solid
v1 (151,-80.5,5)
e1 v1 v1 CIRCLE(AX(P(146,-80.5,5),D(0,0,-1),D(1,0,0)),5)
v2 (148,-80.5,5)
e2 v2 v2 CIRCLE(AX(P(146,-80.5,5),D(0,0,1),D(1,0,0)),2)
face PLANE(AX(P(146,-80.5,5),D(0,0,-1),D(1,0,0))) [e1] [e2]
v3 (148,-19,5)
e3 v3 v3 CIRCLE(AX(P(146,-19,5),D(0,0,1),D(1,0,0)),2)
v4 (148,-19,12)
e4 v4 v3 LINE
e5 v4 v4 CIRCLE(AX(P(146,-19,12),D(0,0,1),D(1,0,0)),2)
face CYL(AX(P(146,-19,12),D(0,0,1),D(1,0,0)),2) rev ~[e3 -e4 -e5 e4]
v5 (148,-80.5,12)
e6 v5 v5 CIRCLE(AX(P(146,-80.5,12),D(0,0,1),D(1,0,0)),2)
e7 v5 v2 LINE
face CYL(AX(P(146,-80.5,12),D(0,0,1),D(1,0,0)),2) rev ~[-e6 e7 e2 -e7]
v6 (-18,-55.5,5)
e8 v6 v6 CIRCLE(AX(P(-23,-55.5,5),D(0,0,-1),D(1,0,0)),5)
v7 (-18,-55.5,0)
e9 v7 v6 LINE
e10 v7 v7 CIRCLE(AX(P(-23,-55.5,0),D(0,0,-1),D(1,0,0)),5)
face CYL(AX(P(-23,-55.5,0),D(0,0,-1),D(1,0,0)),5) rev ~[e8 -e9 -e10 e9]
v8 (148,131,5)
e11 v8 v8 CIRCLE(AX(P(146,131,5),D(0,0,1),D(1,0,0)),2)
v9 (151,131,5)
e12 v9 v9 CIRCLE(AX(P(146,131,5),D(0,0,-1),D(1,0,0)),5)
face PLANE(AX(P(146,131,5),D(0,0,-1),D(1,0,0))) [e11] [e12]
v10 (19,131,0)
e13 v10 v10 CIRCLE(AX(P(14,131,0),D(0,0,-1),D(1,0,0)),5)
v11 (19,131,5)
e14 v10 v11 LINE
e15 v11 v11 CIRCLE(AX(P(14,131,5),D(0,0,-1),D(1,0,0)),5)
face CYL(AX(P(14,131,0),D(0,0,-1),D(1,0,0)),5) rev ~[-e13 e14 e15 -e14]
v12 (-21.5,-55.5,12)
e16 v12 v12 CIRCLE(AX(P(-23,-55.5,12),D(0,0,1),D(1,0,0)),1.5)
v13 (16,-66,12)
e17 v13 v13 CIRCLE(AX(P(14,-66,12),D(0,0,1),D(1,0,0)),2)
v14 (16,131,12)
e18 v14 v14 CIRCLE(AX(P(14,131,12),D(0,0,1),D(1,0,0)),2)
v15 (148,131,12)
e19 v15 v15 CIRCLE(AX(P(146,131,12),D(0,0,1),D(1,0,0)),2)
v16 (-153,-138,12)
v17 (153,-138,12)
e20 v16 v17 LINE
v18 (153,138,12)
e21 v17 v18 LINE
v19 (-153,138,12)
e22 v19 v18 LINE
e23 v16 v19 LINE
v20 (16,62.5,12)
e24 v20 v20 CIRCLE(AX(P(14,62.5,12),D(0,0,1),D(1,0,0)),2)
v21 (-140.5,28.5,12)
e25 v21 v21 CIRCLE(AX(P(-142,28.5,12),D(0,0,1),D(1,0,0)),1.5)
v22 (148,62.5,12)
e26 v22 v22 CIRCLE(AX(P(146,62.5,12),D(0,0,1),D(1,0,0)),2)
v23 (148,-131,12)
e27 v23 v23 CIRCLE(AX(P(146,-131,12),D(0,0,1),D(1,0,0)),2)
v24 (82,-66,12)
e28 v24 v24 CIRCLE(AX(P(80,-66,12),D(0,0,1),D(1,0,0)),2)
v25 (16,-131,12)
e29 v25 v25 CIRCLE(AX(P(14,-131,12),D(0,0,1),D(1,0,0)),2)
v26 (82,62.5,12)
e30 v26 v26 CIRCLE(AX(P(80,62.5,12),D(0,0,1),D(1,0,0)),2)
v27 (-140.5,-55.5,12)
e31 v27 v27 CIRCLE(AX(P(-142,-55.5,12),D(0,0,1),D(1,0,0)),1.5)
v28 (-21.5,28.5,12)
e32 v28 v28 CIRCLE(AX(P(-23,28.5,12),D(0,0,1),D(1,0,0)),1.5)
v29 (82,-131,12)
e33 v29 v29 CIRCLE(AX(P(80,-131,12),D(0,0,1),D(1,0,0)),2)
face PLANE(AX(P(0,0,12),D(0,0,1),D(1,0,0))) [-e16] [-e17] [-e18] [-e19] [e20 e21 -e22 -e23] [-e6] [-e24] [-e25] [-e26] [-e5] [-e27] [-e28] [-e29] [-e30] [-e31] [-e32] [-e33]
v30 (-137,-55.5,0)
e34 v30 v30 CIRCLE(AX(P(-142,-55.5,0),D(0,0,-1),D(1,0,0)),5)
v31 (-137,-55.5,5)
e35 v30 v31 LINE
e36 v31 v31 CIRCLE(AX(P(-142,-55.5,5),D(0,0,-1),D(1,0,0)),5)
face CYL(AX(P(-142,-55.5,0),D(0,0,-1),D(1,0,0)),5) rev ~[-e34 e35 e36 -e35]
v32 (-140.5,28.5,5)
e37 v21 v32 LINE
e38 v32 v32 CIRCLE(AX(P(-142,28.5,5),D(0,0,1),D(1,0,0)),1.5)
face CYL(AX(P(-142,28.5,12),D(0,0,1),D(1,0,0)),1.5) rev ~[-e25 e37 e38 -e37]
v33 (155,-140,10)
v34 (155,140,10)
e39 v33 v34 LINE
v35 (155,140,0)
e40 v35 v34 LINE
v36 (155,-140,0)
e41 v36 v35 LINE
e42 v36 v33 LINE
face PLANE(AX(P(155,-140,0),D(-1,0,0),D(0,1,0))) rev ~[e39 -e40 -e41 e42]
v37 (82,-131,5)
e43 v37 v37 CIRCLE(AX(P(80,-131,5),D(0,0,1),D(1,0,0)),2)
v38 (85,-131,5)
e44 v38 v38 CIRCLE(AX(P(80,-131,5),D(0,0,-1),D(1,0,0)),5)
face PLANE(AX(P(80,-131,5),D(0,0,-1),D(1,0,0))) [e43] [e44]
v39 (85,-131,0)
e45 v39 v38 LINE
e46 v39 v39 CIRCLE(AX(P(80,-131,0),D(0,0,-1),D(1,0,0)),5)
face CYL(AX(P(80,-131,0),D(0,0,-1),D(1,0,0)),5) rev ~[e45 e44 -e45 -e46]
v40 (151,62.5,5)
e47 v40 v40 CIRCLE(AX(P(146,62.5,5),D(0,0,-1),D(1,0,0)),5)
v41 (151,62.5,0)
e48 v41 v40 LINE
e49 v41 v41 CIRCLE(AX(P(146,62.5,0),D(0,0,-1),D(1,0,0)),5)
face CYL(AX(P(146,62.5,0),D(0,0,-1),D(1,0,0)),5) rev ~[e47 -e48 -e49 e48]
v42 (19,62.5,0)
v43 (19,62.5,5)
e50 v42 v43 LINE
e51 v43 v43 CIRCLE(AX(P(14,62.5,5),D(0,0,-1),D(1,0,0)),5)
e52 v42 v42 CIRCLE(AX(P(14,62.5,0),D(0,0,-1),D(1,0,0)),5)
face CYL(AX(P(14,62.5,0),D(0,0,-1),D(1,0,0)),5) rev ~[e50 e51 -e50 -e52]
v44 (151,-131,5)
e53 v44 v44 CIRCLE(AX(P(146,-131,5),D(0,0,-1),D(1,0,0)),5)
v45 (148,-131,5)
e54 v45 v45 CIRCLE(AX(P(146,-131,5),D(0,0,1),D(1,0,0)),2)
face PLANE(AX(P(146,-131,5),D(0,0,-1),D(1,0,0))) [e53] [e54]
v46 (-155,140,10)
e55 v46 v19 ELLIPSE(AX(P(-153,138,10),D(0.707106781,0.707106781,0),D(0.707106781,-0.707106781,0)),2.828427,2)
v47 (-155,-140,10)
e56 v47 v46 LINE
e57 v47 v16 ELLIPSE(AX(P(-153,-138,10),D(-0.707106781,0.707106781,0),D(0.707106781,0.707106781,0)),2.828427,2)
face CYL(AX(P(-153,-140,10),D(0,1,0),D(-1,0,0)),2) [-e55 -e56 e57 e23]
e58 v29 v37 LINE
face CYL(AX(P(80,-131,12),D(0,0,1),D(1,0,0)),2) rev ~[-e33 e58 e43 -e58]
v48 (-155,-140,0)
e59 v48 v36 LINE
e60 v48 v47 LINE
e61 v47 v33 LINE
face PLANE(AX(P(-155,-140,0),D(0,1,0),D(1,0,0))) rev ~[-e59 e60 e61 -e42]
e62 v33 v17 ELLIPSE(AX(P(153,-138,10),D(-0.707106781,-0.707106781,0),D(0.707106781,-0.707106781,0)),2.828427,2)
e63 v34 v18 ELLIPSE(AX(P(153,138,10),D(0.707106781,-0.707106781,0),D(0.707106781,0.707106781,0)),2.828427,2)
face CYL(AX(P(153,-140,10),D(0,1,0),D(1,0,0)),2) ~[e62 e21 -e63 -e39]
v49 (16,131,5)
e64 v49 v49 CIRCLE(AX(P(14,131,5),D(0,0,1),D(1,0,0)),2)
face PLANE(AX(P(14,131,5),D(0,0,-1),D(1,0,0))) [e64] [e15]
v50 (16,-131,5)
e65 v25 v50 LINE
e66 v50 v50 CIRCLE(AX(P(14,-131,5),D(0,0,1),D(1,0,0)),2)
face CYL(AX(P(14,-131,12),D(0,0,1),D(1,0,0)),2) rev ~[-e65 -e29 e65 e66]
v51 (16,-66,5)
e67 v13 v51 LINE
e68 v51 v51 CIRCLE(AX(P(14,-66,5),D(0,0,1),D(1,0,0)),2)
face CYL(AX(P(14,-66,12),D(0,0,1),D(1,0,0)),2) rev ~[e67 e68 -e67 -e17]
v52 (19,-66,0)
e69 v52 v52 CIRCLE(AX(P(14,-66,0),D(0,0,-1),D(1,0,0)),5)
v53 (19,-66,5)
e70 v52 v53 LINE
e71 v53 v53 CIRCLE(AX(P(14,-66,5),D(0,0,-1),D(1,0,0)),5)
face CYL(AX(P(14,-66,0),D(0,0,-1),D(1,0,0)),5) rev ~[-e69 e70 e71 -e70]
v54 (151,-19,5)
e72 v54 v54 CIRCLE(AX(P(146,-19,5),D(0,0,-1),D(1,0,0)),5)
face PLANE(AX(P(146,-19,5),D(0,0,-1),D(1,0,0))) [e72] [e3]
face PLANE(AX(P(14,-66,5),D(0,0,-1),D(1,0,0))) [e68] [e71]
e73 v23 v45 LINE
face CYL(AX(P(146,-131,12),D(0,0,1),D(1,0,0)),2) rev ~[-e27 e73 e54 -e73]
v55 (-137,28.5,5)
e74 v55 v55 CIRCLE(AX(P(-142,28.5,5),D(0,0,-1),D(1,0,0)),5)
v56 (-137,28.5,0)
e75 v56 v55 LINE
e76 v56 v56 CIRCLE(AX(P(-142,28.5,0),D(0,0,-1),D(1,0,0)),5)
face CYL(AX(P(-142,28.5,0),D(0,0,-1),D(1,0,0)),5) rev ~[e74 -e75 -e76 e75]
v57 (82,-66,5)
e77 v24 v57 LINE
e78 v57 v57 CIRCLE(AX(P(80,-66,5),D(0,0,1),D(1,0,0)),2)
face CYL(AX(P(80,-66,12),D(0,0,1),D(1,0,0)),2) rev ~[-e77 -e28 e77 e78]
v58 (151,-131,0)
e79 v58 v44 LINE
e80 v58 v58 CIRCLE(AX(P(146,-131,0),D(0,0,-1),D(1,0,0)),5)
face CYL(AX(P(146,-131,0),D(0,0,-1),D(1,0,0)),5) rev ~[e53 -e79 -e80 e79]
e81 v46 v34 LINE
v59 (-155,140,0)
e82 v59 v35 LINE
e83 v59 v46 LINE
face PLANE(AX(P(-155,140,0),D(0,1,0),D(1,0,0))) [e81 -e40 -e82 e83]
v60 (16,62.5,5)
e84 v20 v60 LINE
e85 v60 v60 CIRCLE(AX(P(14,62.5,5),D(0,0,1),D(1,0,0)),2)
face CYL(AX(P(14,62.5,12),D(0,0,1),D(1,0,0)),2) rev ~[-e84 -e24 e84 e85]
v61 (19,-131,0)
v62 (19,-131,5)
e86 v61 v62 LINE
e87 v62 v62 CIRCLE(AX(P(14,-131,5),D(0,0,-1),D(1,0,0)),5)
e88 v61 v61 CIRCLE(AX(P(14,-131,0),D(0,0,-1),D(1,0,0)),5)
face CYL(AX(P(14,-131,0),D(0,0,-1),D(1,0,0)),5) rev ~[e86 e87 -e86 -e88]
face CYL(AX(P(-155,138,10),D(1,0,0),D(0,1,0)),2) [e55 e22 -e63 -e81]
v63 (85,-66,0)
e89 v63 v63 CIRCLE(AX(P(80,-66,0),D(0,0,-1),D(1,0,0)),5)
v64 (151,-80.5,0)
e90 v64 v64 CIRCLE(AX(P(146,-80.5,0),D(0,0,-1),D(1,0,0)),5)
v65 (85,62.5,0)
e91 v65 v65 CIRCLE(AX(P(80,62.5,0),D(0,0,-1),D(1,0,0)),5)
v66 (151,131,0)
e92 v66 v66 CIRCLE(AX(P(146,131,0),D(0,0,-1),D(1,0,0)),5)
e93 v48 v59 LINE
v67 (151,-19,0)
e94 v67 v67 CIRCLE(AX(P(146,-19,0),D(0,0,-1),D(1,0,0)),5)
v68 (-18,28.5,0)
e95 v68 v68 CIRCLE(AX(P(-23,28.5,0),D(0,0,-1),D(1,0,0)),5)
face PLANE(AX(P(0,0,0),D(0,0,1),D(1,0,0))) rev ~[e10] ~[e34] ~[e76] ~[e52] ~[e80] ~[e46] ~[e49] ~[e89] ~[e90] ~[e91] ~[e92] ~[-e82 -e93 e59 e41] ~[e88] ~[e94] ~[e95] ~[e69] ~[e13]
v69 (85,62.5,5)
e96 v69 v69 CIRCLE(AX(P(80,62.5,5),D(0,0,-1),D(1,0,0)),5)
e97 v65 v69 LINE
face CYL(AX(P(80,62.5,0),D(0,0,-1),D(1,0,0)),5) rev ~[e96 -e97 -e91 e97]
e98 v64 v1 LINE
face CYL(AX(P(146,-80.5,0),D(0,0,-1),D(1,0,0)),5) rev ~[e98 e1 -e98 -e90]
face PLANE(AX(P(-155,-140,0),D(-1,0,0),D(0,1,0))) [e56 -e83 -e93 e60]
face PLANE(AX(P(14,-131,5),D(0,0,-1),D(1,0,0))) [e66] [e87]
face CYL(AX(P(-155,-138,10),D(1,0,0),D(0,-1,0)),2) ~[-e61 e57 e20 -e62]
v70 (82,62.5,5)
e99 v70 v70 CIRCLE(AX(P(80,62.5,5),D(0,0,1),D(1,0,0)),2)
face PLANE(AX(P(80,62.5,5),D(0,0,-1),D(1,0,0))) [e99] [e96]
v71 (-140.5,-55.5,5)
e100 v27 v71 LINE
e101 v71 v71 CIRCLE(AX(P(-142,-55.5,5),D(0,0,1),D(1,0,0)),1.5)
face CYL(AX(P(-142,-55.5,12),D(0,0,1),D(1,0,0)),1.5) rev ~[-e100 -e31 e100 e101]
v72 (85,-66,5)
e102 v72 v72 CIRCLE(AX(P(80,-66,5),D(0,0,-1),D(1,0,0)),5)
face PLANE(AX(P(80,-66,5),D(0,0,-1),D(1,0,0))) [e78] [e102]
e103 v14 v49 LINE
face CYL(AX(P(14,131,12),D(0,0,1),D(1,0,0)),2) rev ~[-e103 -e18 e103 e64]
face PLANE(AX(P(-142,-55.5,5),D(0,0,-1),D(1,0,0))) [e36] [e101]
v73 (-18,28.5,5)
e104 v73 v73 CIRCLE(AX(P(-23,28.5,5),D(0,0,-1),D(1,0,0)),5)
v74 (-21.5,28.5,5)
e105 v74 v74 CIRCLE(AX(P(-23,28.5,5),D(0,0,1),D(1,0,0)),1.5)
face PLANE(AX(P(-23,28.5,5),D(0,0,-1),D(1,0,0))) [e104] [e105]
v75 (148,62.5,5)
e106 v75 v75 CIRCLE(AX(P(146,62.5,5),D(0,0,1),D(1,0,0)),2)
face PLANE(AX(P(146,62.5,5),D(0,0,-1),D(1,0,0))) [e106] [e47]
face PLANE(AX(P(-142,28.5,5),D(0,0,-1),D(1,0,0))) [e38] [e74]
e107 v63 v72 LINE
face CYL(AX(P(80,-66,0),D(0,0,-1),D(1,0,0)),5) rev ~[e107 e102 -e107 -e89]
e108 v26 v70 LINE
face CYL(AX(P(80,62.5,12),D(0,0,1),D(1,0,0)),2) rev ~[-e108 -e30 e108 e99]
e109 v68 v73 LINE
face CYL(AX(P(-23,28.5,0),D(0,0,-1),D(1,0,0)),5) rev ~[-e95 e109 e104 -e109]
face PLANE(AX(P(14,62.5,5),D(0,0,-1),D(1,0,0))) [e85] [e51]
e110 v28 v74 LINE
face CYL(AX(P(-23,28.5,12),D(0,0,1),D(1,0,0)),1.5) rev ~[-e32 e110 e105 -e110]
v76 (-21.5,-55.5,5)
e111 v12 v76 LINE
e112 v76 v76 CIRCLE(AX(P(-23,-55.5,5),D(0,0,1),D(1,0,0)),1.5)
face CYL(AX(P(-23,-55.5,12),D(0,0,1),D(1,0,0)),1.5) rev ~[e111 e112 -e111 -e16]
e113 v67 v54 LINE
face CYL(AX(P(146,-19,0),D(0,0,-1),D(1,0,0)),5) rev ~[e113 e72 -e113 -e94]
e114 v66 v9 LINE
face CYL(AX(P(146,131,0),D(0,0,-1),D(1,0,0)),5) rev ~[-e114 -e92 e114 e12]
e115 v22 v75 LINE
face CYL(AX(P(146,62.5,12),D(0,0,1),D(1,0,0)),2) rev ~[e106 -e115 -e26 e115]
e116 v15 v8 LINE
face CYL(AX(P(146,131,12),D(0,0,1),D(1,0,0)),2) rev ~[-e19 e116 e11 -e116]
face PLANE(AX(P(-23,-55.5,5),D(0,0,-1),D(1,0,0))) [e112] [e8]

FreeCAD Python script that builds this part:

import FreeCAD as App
import Part
import Sketcher
from FreeCAD import Vector


def edges_at(feature, points):
    """Names of the edges that pass closest to the given points."""
    edges = feature.Shape.Edges
    near = lambda p: min(range(len(edges)), key=lambda i: edges[i].distToShape(Part.Vertex(*p))[0])
    return sorted({f"Edge{near(p) + 1}" for p in points})

doc = App.newDocument("Part")
params = doc.addObject("Spreadsheet::Sheet", "Params")
for row, (alias, value) in enumerate([
    ("sketch1_width", "310 mm"),
    ("sketch1_height", "280 mm"),
    ("pad1_length", "12 mm"),
    ("fillet_radius", "2 mm"),
    ("sketch2_diameter", "4 mm"),
    ("pocket1_length", "25 mm"),
    ("sketch3_diameter", "10 mm"),
    ("pocket2_length", "5 mm"),
    ("sketch4_diameter", "3 mm"),
    ("pocket3_length", "25 mm"),
    ("sketch5_diameter", "10 mm"),
    ("pocket4_length", "5 mm"),
], start=1):
    params.set(f"A{row}", alias)
    params.set(f"B{row}", "=" + value)
    params.setAlias(f"B{row}", alias)

body = doc.addObject("PartDesign::Body", "Body")

sketch1 = body.newObject("Sketcher::SketchObject", "Sketch")
sketch1.AttachmentSupport = (doc.getObject("XY_Plane"), [""])
sketch1.MapMode = "FlatFace"
sketch1.addGeometry([
    Part.LineSegment(Vector(-155, 140, 0), Vector(-155, -140, 0)),
    Part.LineSegment(Vector(-155, -140, 0), Vector(155, -140, 0)),
    Part.LineSegment(Vector(155, -140, 0), Vector(155, 140, 0)),
    Part.LineSegment(Vector(155, 140, 0), Vector(-155, 140, 0)),
], False)
sketch1.addConstraint([
    Sketcher.Constraint("Coincident", 0, 2, 1, 1),
    Sketcher.Constraint("Coincident", 1, 2, 2, 1),
    Sketcher.Constraint("Coincident", 2, 2, 3, 1),
    Sketcher.Constraint("Coincident", 3, 2, 0, 1),
    Sketcher.Constraint("Vertical", 0),
    Sketcher.Constraint("Horizontal", 1),
    Sketcher.Constraint("Vertical", 2),
    Sketcher.Constraint("Horizontal", 3),
    Sketcher.Constraint("Symmetric", 0, 2, 2, 2, -1, 1),
    Sketcher.Constraint("DistanceX", 1, 1, 1, 2, 310.0),
    Sketcher.Constraint("DistanceY", 0, 2, 0, 1, 280.0),
])
sketch1.setExpression("Constraints[9]", "Params.sketch1_width")
sketch1.setExpression("Constraints[10]", "Params.sketch1_height")
pad1 = body.newObject("PartDesign::Pad", "Pad")
pad1.Profile = sketch1
pad1.setExpression("Length", "Params.pad1_length")
doc.recompute()

fillet = body.newObject("PartDesign::Fillet", "Fillet")
fillet.Base = (pad1, edges_at(pad1, [
    (0, -140, 12),
    (155, 0, 12),
    (0, 140, 12),
    (-155, 0, 12),
]))
fillet.setExpression("Radius", "Params.fillet_radius")

sketch2 = body.newObject("Sketcher::SketchObject", "Sketch001")
sketch2.AttachmentSupport = (doc.getObject("XY_Plane"), [""])
sketch2.MapMode = "FlatFace"
sketch2.AttachmentOffset = App.Placement(Vector(0, 0, 12), App.Rotation())
sketch2.addGeometry([
    Part.Circle(Vector(14, -131, 0), Vector(0, 0, 1), 2),
    Part.Circle(Vector(14, 131, 0), Vector(0, 0, 1), 2),
    Part.Circle(Vector(146, 131, 0), Vector(0, 0, 1), 2),
    Part.Circle(Vector(146, -131, 0), Vector(0, 0, 1), 2),
    Part.Circle(Vector(146, 62.5, 0), Vector(0, 0, 1), 2),
    Part.Circle(Vector(146, -80.5, 0), Vector(0, 0, 1), 2),
    Part.Circle(Vector(14, -66, 0), Vector(0, 0, 1), 2),
    Part.Circle(Vector(14, 62.5, 0), Vector(0, 0, 1), 2),
    Part.Circle(Vector(80, 62.5, 0), Vector(0, 0, 1), 2),
    Part.Circle(Vector(80, -66, 0), Vector(0, 0, 1), 2),
    Part.Circle(Vector(146, -19, 0), Vector(0, 0, 1), 2),
    Part.Circle(Vector(80, -131, 0), Vector(0, 0, 1), 2),
], False)
sketch2.addConstraint([
    Sketcher.Constraint("Equal", 0, 1),
    Sketcher.Constraint("Equal", 1, 2),
    Sketcher.Constraint("Equal", 2, 3),
    Sketcher.Constraint("Equal", 3, 4),
    Sketcher.Constraint("Equal", 4, 5),
    Sketcher.Constraint("Equal", 5, 6),
    Sketcher.Constraint("Equal", 6, 7),
    Sketcher.Constraint("Equal", 7, 8),
    Sketcher.Constraint("Equal", 8, 9),
    Sketcher.Constraint("Equal", 9, 10),
    Sketcher.Constraint("Equal", 10, 11),
    Sketcher.Constraint("Symmetric", 0, 3, 1, 3, -1),
    Sketcher.Constraint("Symmetric", 2, 3, 3, 3, -1),
    Sketcher.Constraint("Horizontal", 1, 3, 2, 3),
    Sketcher.Constraint("Horizontal", 4, 3, 7, 3),
    Sketcher.Constraint("Horizontal", 7, 3, 8, 3),
    Sketcher.Constraint("Horizontal", 6, 3, 9, 3),
    Sketcher.Constraint("Horizontal", 3, 3, 11, 3),
    Sketcher.Constraint("Vertical", 3, 3, 4, 3),
    Sketcher.Constraint("Vertical", 4, 3, 5, 3),
    Sketcher.Constraint("Vertical", 1, 3, 6, 3),
    Sketcher.Constraint("Vertical", 6, 3, 7, 3),
    Sketcher.Constraint("Vertical", 8, 3, 9, 3),
    Sketcher.Constraint("Vertical", 5, 3, 10, 3),
    Sketcher.Constraint("Vertical", 9, 3, 11, 3),
    Sketcher.Constraint("Diameter", 0, 4.0),
    Sketcher.Constraint("DistanceX", -1, 1, 0, 3, 14.0),
    Sketcher.Constraint("DistanceY", 0, 3, -1, 1, 131.0),
    Sketcher.Constraint("DistanceX", -1, 1, 2, 3, 146.0),
    Sketcher.Constraint("DistanceY", 6, 3, -1, 1, 66.0),
    Sketcher.Constraint("DistanceX", -1, 1, 8, 3, 80.0),
    Sketcher.Constraint("DistanceY", 10, 3, -1, 1, 19.0),
    Sketcher.Constraint("DistanceY", 5, 3, 4, 3, 143.0),
    Sketcher.Constraint("DistanceY", -1, 1, 4, 3, 62.5),
])
sketch2.setExpression("Constraints[25]", "Params.sketch2_diameter")
pocket1 = body.newObject("PartDesign::Pocket", "Pocket")
pocket1.Profile = sketch2
pocket1.setExpression("Length", "Params.pocket1_length")

sketch3 = body.newObject("Sketcher::SketchObject", "Sketch002")
sketch3.AttachmentSupport = (doc.getObject("XY_Plane"), [""])
sketch3.MapMode = "FlatFace"
sketch3.addGeometry([
    Part.Circle(Vector(14, -131, 0), Vector(0, 0, 1), 5),
    Part.Circle(Vector(14, -66, 0), Vector(0, 0, 1), 5),
    Part.Circle(Vector(146, -80, 0), Vector(0, 0, 1), 5),
    Part.Circle(Vector(146, -131, 0), Vector(0, 0, 1), 5),
    Part.Circle(Vector(146, 62, 0), Vector(0, 0, 1), 5),
    Part.Circle(Vector(14, 62, 0), Vector(0, 0, 1), 5),
    Part.Circle(Vector(14, 131, 0), Vector(0, 0, 1), 5),
    Part.Circle(Vector(146, 131, 0), Vector(0, 0, 1), 5),
    Part.Circle(Vector(80, 62, 0), Vector(0, 0, 1), 5),
    Part.Circle(Vector(80, -66, 0), Vector(0, 0, 1), 5),
    Part.Circle(Vector(146, -19, 0), Vector(0, 0, 1), 5),
    Part.Circle(Vector(80, -131, 0), Vector(0, 0, 1), 5),
], False)
sketch3.addConstraint([
    Sketcher.Constraint("Equal", 0, 1),
    Sketcher.Constraint("Equal", 1, 2),
    Sketcher.Constraint("Equal", 2, 3),
    Sketcher.Constraint("Equal", 3, 4),
    Sketcher.Constraint("Equal", 4, 5),
    Sketcher.Constraint("Equal", 5, 6),
    Sketcher.Constraint("Equal", 6, 7),
    Sketcher.Constraint("Equal", 7, 8),
    Sketcher.Constraint("Equal", 8, 9),
    Sketcher.Constraint("Equal", 9, 10),
    Sketcher.Constraint("Equal", 10, 11),
    Sketcher.Constraint("Symmetric", 0, 3, 6, 3, -1),
    Sketcher.Constraint("Symmetric", 3, 3, 7, 3, -1),
    Sketcher.Constraint("Horizontal", 0, 3, 3, 3),
    Sketcher.Constraint("Horizontal", 4, 3, 5, 3),
    Sketcher.Constraint("Horizontal", 5, 3, 8, 3),
    Sketcher.Constraint("Horizontal", 1, 3, 9, 3),
    Sketcher.Constraint("Horizontal", 3, 3, 11, 3),
    Sketcher.Constraint("Vertical", 0, 3, 1, 3),
    Sketcher.Constraint("Vertical", 2, 3, 3, 3),
    Sketcher.Constraint("Vertical", 3, 3, 4, 3),
    Sketcher.Constraint("Vertical", 1, 3, 5, 3),
    Sketcher.Constraint("Vertical", 8, 3, 9, 3),
    Sketcher.Constraint("Vertical", 7, 3, 10, 3),
    Sketcher.Constraint("Vertical", 9, 3, 11, 3),
    Sketcher.Constraint("Diameter", 0, 10.0),
    Sketcher.Constraint("DistanceX", -1, 1, 0, 3, 14.0),
    Sketcher.Constraint("DistanceY", 0, 3, -1, 1, 131.0),
    Sketcher.Constraint("DistanceY", 1, 3, -1, 1, 66.0),
    Sketcher.Constraint("DistanceX", -1, 1, 2, 3, 146.0),
    Sketcher.Constraint("DistanceX", -1, 1, 8, 3, 80.0),
    Sketcher.Constraint("DistanceY", 10, 3, -1, 1, 19.0),
    Sketcher.Constraint("DistanceY", 2, 3, 4, 3, 143.0),
    Sketcher.Constraint("DistanceY", 2, 3, -1, 1, 80.5),
])
sketch3.setExpression("Constraints[25]", "Params.sketch3_diameter")
pocket2 = body.newObject("PartDesign::Pocket", "Pocket001")
pocket2.Profile = sketch3
pocket2.setExpression("Length", "Params.pocket2_length")
pocket2.Reversed = True

sketch4 = body.newObject("Sketcher::SketchObject", "Sketch003")
sketch4.AttachmentSupport = (doc.getObject("XY_Plane"), [""])
sketch4.MapMode = "FlatFace"
sketch4.AttachmentOffset = App.Placement(Vector(0, 0, 12), App.Rotation())
sketch4.addGeometry([
    Part.Circle(Vector(-142, 28.5, 0), Vector(0, 0, 1), 1.5),
    Part.Circle(Vector(-23, 28.5, 0), Vector(0, 0, 1), 1.5),
    Part.Circle(Vector(-23, -55.5, 0), Vector(0, 0, 1), 1.5),
    Part.Circle(Vector(-142, -55.5, 0), Vector(0, 0, 1), 1.5),
], False)
sketch4.addConstraint([
    Sketcher.Constraint("Equal", 0, 1),
    Sketcher.Constraint("Equal", 1, 2),
    Sketcher.Constraint("Equal", 2, 3),
    Sketcher.Constraint("Horizontal", 0, 3, 1, 3),
    Sketcher.Constraint("Horizontal", 2, 3, 3, 3),
    Sketcher.Constraint("Vertical", 1, 3, 2, 3),
    Sketcher.Constraint("Vertical", 0, 3, 3, 3),
    Sketcher.Constraint("Diameter", 0, 3.0),
    Sketcher.Constraint("DistanceX", 0, 3, -1, 1, 142.0),
    Sketcher.Constraint("DistanceX", 1, 3, -1, 1, 23.0),
    Sketcher.Constraint("DistanceY", 2, 3, 1, 3, 84.0),
    Sketcher.Constraint("DistanceY", -1, 1, 0, 3, 28.5),
])
sketch4.setExpression("Constraints[7]", "Params.sketch4_diameter")
pocket3 = body.newObject("PartDesign::Pocket", "Pocket002")
pocket3.Profile = sketch4
pocket3.setExpression("Length", "Params.pocket3_length")

sketch5 = body.newObject("Sketcher::SketchObject", "Sketch004")
sketch5.AttachmentSupport = (doc.getObject("XY_Plane"), [""])
sketch5.MapMode = "FlatFace"
sketch5.addGeometry([
    Part.Circle(Vector(-142, -56, 0), Vector(0, 0, 1), 5),
    Part.Circle(Vector(-142, 28, 0), Vector(0, 0, 1), 5),
    Part.Circle(Vector(-23, 28, 0), Vector(0, 0, 1), 5),
    Part.Circle(Vector(-23, -56, 0), Vector(0, 0, 1), 5),
], False)
sketch5.addConstraint([
    Sketcher.Constraint("Equal", 0, 1),
    Sketcher.Constraint("Equal", 1, 2),
    Sketcher.Constraint("Equal", 2, 3),
    Sketcher.Constraint("Horizontal", 1, 3, 2, 3),
    Sketcher.Constraint("Horizontal", 0, 3, 3, 3),
    Sketcher.Constraint("Vertical", 0, 3, 1, 3),
    Sketcher.Constraint("Vertical", 2, 3, 3, 3),
    Sketcher.Constraint("Diameter", 0, 10.0),
    Sketcher.Constraint("DistanceX", 0, 3, -1, 1, 142.0),
    Sketcher.Constraint("DistanceX", 2, 3, -1, 1, 23.0),
    Sketcher.Constraint("DistanceY", 0, 3, 1, 3, 84.0),
    Sketcher.Constraint("DistanceY", 0, 3, -1, 1, 55.5),
])
sketch5.setExpression("Constraints[7]", "Params.sketch5_diameter")
pocket4 = body.newObject("PartDesign::Pocket", "Pocket003")
pocket4.Profile = sketch5
pocket4.setExpression("Length", "Params.pocket4_length")
pocket4.Reversed = True

doc.recompute()
